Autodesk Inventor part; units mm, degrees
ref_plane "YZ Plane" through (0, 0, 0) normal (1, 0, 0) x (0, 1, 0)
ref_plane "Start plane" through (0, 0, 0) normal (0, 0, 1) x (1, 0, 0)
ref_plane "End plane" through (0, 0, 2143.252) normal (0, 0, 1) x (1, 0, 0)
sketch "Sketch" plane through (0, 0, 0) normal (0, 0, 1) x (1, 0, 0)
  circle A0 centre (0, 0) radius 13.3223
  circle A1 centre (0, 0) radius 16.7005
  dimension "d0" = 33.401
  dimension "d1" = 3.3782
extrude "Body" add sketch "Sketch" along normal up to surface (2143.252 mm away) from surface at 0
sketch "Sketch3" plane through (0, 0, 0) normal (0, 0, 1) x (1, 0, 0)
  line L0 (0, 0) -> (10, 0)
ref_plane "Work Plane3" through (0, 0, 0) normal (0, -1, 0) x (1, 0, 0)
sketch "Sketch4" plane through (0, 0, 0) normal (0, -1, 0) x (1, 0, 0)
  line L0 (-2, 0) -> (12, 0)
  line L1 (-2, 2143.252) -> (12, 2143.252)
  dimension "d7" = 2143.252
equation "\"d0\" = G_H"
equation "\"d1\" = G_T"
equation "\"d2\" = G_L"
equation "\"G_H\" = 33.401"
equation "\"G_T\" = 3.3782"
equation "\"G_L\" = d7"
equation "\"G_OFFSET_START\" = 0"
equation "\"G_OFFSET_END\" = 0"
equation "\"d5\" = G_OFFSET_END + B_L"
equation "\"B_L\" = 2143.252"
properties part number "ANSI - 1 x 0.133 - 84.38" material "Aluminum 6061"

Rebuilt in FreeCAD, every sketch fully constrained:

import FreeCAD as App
import Part
import Sketcher

V = App.Vector
Q = App.Units.Quantity

doc = App.newDocument("Part")
body = doc.addObject("PartDesign::Body", "Body")

# Sketch on XY plane
sketch1 = doc.addObject("Sketcher::SketchObject", "Sketch")
body.addObject(sketch1)
sketch1.AttachmentSupport = (doc.XY_Plane, [""])
sketch1.MapMode = "FlatFace"
sketch1.addGeometry(Part.Circle(V(0, 0, 0), V(0, 0, 1), 17), False)
sketch1.addGeometry(Part.Circle(V(0, 0, 0), V(0, 0, 1), 13), False)
sketch1.addConstraint(Sketcher.Constraint("Coincident", 0, 3, -1, 1))
sketch1.addConstraint(Sketcher.Constraint("Coincident", 1, 3, -1, 1))
sketch1.addConstraint(Sketcher.Constraint("Diameter", 0, Q("1.315 in")))
sketch1.addConstraint(Sketcher.Constraint("Diameter", 1, Q("1.049 in")))
pad1 = doc.addObject("PartDesign::Pad", "Pad")
body.addObject(pad1)
pad1.Profile = sketch1
pad1.Length = Q("84.38 in")

doc.recompute()
